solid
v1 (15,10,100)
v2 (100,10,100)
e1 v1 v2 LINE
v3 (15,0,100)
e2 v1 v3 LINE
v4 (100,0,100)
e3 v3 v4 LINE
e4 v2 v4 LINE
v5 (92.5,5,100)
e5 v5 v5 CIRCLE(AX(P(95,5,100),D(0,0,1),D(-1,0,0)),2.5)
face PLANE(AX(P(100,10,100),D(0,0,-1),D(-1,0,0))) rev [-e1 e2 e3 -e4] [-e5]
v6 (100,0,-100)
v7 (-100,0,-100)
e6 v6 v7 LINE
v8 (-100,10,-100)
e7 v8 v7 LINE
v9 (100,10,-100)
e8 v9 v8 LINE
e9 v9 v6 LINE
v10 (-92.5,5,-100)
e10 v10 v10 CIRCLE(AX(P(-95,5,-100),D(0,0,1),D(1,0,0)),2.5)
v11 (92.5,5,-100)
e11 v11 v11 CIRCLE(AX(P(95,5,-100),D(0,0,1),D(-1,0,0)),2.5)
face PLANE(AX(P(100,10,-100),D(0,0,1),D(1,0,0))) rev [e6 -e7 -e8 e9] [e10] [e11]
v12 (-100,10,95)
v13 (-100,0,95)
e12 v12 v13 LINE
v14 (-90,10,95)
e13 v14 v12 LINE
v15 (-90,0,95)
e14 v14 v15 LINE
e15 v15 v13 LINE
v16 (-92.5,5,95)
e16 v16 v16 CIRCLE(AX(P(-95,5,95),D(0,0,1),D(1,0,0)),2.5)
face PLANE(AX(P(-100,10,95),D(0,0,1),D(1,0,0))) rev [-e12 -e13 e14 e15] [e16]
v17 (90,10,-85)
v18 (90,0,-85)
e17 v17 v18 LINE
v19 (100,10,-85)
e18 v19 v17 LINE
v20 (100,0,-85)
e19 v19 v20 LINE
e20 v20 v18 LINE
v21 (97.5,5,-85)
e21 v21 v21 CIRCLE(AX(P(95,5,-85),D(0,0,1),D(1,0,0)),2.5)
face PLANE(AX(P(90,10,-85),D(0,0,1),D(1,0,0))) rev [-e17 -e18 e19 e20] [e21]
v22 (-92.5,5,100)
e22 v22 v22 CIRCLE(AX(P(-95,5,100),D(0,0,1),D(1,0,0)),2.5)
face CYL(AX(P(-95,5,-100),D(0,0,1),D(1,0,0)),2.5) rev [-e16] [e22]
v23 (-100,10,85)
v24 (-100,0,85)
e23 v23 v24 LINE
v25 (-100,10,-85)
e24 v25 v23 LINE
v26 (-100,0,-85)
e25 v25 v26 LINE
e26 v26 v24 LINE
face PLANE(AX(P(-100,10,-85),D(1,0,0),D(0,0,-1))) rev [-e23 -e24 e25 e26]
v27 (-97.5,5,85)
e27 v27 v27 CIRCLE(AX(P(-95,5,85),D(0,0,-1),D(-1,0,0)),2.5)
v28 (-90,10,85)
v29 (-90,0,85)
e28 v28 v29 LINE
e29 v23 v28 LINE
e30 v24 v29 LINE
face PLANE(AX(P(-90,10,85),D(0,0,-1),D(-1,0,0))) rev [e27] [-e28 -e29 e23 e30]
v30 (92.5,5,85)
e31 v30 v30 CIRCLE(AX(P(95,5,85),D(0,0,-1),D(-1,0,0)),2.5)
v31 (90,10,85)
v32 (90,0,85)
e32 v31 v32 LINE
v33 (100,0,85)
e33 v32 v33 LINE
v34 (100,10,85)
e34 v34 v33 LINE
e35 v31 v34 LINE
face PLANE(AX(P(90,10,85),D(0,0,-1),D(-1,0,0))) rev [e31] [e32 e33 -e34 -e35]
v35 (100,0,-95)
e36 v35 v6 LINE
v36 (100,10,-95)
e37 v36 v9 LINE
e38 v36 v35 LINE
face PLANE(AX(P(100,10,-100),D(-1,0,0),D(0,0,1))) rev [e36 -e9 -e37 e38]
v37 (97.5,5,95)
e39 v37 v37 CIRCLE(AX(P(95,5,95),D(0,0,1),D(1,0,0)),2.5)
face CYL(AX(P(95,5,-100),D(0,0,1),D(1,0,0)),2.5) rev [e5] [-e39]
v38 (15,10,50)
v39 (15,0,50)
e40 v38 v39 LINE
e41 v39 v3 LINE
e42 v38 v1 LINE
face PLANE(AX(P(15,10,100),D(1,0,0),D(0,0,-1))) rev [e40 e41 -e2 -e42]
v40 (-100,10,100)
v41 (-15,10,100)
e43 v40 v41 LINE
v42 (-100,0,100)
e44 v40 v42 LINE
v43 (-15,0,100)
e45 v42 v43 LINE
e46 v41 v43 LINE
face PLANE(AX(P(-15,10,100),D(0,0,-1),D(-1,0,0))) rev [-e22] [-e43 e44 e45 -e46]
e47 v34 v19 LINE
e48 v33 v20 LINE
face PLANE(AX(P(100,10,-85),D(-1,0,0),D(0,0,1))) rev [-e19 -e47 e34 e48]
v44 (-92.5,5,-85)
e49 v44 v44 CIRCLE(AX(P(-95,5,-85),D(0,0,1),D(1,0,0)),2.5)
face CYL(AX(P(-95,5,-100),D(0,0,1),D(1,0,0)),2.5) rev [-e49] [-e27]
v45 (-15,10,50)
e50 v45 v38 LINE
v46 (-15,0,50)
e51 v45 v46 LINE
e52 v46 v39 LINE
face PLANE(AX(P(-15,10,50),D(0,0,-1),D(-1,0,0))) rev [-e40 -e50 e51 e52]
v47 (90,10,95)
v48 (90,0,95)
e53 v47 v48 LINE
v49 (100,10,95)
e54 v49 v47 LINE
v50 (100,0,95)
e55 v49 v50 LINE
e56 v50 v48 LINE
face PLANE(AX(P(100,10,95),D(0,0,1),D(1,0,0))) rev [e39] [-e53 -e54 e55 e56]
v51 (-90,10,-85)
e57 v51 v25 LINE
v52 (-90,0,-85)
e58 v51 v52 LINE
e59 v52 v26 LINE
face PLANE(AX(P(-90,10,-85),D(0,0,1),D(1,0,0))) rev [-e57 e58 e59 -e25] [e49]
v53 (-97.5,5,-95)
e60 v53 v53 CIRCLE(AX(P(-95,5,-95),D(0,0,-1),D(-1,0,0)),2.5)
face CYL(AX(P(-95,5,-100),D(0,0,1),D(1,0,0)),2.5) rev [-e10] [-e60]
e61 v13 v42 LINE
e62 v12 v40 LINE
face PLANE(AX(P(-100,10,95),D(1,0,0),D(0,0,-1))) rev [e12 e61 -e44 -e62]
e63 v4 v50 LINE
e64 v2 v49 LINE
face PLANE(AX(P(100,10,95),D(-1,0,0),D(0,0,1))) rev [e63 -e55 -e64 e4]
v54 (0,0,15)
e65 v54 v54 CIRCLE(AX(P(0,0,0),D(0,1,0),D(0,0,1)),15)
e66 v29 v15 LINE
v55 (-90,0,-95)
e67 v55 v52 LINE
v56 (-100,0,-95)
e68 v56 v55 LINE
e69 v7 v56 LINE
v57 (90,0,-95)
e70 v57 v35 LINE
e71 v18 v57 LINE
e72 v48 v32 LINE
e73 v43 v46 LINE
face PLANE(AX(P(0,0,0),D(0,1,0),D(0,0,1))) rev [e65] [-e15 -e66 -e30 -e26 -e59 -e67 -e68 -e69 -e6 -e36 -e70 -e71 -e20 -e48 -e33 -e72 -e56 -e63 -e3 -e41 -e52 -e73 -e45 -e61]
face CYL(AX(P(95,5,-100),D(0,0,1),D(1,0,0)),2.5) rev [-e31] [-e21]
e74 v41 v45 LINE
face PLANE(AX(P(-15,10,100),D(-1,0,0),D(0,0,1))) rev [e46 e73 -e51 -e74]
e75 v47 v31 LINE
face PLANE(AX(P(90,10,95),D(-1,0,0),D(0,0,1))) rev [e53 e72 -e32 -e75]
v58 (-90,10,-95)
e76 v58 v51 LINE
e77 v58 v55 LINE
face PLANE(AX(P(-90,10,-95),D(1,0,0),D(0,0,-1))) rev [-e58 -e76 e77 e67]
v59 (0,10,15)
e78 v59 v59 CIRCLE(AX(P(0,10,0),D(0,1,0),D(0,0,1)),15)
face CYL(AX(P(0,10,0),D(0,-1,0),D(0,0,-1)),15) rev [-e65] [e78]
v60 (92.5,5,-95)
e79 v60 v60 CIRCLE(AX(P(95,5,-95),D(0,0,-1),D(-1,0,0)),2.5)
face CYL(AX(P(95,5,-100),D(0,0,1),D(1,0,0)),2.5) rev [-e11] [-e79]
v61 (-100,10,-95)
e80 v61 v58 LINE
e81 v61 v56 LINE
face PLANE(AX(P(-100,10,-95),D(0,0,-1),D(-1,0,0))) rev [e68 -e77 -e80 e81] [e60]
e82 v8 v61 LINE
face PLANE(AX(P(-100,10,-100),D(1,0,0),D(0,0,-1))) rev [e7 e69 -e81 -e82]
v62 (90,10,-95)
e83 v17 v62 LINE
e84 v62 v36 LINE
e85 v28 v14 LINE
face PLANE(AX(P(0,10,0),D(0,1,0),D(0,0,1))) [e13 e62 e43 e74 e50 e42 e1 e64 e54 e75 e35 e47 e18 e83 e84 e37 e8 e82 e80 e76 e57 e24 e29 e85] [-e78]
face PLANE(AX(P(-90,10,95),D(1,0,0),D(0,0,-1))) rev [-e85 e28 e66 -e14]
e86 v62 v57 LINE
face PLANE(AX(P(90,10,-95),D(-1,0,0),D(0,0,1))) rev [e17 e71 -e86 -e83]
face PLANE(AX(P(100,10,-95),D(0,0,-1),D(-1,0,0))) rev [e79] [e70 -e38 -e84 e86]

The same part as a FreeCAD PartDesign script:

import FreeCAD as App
import Part
import Sketcher

V = App.Vector


def add_polygon(sketch, points):
    """Adds a closed chain of lines whose ends are joined by coincident constraints."""
    first, n = sketch.GeometryCount, len(points)
    for a, b in zip(points, points[1:] + points[:1]):
        sketch.addGeometry(Part.LineSegment(App.Vector(*a, 0), App.Vector(*b, 0)), False)
    for i in range(n):
        sketch.addConstraint(Sketcher.Constraint("Coincident", first + i, 2, first + (i + 1) % n, 1))

doc = App.newDocument("Part")
params = doc.addObject("Spreadsheet::Sheet", "Params")
for row, (alias, value) in enumerate([
    ("sketch1_diameter", "30 mm"),
    ("sketch1_width", "10 mm"),
    ("sketch1_width2", "85 mm"),
    ("sketch1_width3", "30 mm"),
    ("sketch1_height", "170 mm"),
    ("pad1_length", "10 mm"),
    ("sketch2_diameter", "5 mm"),
], start=1):
    params.set(f"A{row}", alias)
    params.set(f"B{row}", "=" + value)
    params.setAlias(f"B{row}", alias)

body = doc.addObject("PartDesign::Body", "Body")

# Sketch on XZ plane
sketch1 = doc.addObject("Sketcher::SketchObject", "Sketch")
body.addObject(sketch1)
sketch1.AttachmentSupport = (doc.XZ_Plane, [""])
sketch1.MapMode = "FlatFace"
add_polygon(sketch1, [(-100, -95), (-90, -95), (-90, -85), (-100, -85), (-100, 85), (-90, 85), (-90, 95), (-100, 95), (-100, 100), (-15, 100), (-15, 50), (15, 50), (15, 100), (100, 100), (100, 95), (90, 95), (90, 85), (100, 85), (100, -85), (90, -85), (90, -95), (100, -95), (100, -100), (-100, -100)])  # lines 0-23
sketch1.addGeometry(Part.Circle(V(0, 0, 0), V(0, 0, 1), 15), False)  # 24
sketch1.addConstraint([
    Sketcher.Constraint("Horizontal", 0),
    Sketcher.Constraint("Vertical", 1),
    Sketcher.Constraint("Horizontal", 2),
    Sketcher.Constraint("Vertical", 3),
    Sketcher.Constraint("Horizontal", 4),
    Sketcher.Constraint("Vertical", 5),
    Sketcher.Constraint("Horizontal", 6),
    Sketcher.Constraint("Vertical", 7),
    Sketcher.Constraint("Horizontal", 8),
    Sketcher.Constraint("Vertical", 9),
    Sketcher.Constraint("Horizontal", 10),
    Sketcher.Constraint("Vertical", 11),
    Sketcher.Constraint("Horizontal", 12),
    Sketcher.Constraint("Vertical", 13),
    Sketcher.Constraint("Horizontal", 14),
    Sketcher.Constraint("Vertical", 15),
    Sketcher.Constraint("Horizontal", 16),
    Sketcher.Constraint("Vertical", 17),
    Sketcher.Constraint("Horizontal", 18),
    Sketcher.Constraint("Vertical", 19),
    Sketcher.Constraint("Horizontal", 20),
    Sketcher.Constraint("Vertical", 21),
    Sketcher.Constraint("Horizontal", 22),
    Sketcher.Constraint("Vertical", 23),
    Sketcher.Constraint("Coincident", 24, 3, -1, 1),
    Sketcher.Constraint("Symmetric", 0, 2, 14, 2, -1, 1),
    Sketcher.Constraint("Symmetric", 2, 2, 16, 2, -1, 1),
    Sketcher.Constraint("Symmetric", 4, 2, 18, 2, -1, 1),
    Sketcher.Constraint("Symmetric", 6, 2, 20, 2, -1, 1),
    Sketcher.Constraint("Symmetric", 12, 2, 22, 2, -1, 1),
    Sketcher.Constraint("Symmetric", 8, 2, 11, 2, -2),
    Sketcher.Constraint("Symmetric", 6, 2, 13, 2, -2),
    Sketcher.Constraint("Symmetric", 4, 2, 15, 2, -2),
    Sketcher.Constraint("Vertical", 3, 2, 6, 2),
    Sketcher.Constraint("Equal", 20, 1),
    Sketcher.Constraint("Diameter", 24, 30.0),
    Sketcher.Constraint("DistanceX", 0, 1, 0, 2, 10.0),
    Sketcher.Constraint("DistanceX", 8, 1, 8, 2, 85.0),
    Sketcher.Constraint("DistanceX", 10, 1, 10, 2, 30.0),
    Sketcher.Constraint("DistanceY", 3, 1, 3, 2, 170.0),
    Sketcher.Constraint("DistanceY", 7, 1, 7, 2, 5.0),
    Sketcher.Constraint("DistanceY", 9, 2, 9, 1, 50.0),
])
sketch1.setExpression("Constraints[59]", "Params.sketch1_diameter")
sketch1.setExpression("Constraints[60]", "Params.sketch1_width")
sketch1.setExpression("Constraints[61]", "Params.sketch1_width2")
sketch1.setExpression("Constraints[62]", "Params.sketch1_width3")
sketch1.setExpression("Constraints[63]", "Params.sketch1_height")
pad1 = doc.addObject("PartDesign::Pad", "Pad")
body.addObject(pad1)
pad1.Profile = sketch1
pad1.setExpression("Length", "Params.pad1_length")
pad1.Reversed = True

# Sketch on XY plane
sketch2 = doc.addObject("Sketcher::SketchObject", "Sketch001")
body.addObject(sketch2)
sketch2.AttachmentSupport = (doc.XY_Plane, [""])
sketch2.MapMode = "FlatFace"
sketch2.AttachmentOffset = App.Placement(V(0, 0, 100), App.Rotation())
sketch2.addGeometry([
    Part.Circle(V(-95, 5, 0), V(0, 0, 1), 2.5),
    Part.Circle(V(95, 5, 0), V(0, 0, 1), 2.5),
], False)
sketch2.addConstraint([
    Sketcher.Constraint("Equal", 0, 1),
    Sketcher.Constraint("Symmetric", 0, 3, 1, 3, -2),
    Sketcher.Constraint("Diameter", 0, 5.0),
    Sketcher.Constraint("DistanceX", 0, 3, -1, 1, 95.0),
    Sketcher.Constraint("DistanceY", -1, 1, 0, 3, 5.0),
])
sketch2.setExpression("Constraints[2]", "Params.sketch2_diameter")
pocket1 = doc.addObject("PartDesign::Pocket", "Pocket")
body.addObject(pocket1)
pocket1.Profile = sketch2
pocket1.Type = "ThroughAll"

doc.recompute()
